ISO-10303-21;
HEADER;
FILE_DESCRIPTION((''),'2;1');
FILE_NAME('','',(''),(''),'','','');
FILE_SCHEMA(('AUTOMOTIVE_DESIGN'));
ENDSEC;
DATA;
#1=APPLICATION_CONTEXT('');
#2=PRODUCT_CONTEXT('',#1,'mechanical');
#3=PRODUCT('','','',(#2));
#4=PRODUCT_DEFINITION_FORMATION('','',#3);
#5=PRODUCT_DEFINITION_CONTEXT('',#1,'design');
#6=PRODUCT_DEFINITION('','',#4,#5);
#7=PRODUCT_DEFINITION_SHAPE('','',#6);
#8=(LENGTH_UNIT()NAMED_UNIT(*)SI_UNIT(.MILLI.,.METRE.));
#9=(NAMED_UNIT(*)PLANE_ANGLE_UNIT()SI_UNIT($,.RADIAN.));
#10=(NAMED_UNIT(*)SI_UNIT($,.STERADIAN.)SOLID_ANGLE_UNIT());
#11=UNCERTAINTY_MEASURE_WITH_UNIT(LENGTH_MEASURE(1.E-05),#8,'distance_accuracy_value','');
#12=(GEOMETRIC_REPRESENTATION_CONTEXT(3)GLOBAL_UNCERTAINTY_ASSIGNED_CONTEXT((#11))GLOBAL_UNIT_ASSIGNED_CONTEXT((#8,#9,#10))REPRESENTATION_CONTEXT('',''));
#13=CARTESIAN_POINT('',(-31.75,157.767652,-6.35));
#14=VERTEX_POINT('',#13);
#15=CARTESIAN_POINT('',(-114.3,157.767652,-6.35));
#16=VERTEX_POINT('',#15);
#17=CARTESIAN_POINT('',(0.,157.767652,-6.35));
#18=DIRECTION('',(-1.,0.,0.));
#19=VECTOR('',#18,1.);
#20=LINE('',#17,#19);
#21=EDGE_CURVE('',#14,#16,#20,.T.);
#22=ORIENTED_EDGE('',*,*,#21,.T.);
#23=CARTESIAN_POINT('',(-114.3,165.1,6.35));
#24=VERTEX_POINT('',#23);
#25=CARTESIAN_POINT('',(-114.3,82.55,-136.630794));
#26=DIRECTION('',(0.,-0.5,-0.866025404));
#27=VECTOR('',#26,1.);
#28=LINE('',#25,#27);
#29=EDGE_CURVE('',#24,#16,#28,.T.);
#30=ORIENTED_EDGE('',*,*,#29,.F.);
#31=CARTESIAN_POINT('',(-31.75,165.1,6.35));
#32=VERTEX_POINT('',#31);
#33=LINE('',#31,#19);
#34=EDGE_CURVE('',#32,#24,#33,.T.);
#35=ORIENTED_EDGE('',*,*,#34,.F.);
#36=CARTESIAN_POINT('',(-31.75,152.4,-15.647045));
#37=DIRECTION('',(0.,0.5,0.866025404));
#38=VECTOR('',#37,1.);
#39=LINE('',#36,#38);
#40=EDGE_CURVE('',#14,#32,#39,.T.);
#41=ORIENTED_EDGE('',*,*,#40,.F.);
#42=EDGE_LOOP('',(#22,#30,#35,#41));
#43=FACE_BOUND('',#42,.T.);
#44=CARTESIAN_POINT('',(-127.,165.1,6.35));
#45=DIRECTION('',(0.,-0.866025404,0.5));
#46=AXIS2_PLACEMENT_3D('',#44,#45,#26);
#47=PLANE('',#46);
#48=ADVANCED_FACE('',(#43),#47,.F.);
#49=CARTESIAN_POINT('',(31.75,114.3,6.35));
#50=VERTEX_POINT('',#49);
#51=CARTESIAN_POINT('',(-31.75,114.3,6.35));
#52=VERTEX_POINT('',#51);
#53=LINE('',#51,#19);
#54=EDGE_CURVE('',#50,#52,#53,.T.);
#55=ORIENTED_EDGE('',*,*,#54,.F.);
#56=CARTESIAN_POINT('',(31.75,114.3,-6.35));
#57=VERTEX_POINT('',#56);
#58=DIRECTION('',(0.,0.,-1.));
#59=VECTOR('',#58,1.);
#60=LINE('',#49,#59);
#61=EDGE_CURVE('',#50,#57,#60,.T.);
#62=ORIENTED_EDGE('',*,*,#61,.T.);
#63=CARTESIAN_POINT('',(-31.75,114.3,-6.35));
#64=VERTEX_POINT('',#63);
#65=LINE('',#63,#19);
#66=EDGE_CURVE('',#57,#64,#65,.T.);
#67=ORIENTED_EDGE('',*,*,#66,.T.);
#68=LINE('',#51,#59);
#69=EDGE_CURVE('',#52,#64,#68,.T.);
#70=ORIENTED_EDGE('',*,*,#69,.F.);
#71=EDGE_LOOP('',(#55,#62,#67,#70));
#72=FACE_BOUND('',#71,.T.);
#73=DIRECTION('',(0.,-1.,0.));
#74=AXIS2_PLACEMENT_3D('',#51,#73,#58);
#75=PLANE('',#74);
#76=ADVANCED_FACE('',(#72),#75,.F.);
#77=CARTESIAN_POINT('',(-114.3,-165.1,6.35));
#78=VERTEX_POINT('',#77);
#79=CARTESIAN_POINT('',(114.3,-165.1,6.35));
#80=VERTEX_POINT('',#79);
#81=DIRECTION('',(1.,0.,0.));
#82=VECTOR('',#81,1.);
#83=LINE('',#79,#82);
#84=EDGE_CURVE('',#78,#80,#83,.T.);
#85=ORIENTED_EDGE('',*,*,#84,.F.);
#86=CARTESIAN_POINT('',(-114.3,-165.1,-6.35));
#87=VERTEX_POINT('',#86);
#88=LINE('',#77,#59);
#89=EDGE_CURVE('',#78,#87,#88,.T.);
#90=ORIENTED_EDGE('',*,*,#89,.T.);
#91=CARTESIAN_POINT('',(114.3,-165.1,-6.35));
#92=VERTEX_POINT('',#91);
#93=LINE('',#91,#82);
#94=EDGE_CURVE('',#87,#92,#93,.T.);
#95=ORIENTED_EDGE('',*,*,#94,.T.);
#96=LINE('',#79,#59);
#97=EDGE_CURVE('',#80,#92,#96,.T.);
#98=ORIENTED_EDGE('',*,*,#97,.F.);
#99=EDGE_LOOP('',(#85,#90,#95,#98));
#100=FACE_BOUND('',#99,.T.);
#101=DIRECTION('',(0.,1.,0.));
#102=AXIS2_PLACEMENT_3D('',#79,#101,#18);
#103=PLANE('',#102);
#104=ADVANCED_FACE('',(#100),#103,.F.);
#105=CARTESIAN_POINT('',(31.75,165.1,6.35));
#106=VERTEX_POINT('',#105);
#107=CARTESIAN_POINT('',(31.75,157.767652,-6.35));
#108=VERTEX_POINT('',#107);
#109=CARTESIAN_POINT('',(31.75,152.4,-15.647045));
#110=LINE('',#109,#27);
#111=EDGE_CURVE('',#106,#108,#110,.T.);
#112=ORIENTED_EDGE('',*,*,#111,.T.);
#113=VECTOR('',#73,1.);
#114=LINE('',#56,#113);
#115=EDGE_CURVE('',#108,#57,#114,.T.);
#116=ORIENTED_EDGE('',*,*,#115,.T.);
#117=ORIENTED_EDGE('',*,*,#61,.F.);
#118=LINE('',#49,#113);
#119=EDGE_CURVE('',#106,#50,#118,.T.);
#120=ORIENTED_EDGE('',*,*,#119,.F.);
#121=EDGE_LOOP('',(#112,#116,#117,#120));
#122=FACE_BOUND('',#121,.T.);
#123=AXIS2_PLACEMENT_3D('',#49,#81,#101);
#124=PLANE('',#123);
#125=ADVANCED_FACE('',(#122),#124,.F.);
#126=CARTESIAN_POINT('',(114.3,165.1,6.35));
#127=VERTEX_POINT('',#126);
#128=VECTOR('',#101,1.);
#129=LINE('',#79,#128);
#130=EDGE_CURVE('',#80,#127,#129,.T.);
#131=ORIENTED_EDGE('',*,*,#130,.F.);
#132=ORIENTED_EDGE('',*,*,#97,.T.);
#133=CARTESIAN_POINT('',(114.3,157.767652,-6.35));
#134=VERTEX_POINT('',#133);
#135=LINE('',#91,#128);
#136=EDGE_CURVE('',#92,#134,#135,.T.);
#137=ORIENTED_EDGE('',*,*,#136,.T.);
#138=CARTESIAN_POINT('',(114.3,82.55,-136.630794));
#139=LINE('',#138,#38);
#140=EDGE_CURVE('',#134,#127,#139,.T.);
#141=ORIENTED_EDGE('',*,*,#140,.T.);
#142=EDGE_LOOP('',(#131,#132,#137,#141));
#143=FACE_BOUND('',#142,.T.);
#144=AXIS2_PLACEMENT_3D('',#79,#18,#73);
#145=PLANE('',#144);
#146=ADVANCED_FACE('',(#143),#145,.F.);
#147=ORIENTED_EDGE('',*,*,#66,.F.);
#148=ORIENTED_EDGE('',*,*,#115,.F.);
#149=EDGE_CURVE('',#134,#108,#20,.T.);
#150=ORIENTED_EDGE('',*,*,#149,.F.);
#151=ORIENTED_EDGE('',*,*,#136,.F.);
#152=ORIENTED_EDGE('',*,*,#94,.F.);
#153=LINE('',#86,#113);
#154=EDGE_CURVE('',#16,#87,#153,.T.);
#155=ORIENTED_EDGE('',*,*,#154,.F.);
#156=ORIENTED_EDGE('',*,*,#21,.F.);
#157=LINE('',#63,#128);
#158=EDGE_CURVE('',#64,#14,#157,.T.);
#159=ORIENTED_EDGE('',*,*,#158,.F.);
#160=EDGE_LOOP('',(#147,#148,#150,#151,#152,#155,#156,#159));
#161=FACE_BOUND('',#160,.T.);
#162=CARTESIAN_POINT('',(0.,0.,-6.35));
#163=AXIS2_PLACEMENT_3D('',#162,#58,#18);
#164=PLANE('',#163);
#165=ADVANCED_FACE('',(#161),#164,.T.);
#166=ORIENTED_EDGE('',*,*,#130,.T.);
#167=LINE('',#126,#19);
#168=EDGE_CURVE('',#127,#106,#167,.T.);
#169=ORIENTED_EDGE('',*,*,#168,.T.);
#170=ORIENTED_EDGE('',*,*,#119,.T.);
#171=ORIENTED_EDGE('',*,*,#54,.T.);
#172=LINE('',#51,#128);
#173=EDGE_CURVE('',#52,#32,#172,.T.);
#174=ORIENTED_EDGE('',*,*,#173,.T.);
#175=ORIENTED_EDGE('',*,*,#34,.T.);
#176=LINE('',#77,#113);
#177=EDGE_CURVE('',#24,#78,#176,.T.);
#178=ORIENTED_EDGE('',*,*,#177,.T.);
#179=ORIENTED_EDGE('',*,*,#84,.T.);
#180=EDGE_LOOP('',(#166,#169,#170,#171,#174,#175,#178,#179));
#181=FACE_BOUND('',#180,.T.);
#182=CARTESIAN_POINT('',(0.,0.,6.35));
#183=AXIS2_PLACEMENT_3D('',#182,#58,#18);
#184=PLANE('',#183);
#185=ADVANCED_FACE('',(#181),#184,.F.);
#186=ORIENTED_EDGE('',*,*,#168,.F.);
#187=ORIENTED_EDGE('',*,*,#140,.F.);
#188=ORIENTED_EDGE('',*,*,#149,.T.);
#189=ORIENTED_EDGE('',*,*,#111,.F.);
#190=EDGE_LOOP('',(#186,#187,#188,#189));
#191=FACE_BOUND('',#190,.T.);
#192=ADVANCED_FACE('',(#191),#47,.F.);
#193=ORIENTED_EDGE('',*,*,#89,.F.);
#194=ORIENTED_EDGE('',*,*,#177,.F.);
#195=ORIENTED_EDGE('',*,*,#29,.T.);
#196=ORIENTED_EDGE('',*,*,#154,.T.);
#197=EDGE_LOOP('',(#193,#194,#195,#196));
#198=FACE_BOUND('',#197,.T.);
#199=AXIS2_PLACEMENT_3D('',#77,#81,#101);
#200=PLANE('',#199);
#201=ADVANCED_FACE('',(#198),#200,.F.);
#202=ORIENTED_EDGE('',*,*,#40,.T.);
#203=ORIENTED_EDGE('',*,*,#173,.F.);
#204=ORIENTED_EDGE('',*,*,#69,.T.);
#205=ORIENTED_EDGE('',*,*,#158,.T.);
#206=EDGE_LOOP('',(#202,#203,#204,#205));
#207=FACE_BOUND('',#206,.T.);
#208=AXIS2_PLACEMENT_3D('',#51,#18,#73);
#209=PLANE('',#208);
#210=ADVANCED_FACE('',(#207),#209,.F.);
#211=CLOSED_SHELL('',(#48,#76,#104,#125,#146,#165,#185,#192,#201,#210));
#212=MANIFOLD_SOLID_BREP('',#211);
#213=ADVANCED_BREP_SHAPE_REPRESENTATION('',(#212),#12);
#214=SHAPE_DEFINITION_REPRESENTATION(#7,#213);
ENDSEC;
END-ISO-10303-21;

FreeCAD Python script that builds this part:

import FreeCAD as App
import Part
import Sketcher
from FreeCAD import Vector
Q = App.Units.Quantity

doc = App.newDocument("Part")
params = doc.addObject("Spreadsheet::Sheet", "Params")
for row, (alias, value) in enumerate([
    ("sketch1_width", "9 in"),
    ("sketch1_height", "13 in"),
    ("sketch1_height2", "2 in"),
    ("sketch1_width2", "2.5 in"),
    ("pad1_length", "0.5 in"),
    ("sketch2_height", "0.5 in"),
    ("pocket1_length", "10 in"),
], start=1):
    params.set(f"A{row}", alias)
    params.set(f"B{row}", "=" + value)
    params.setAlias(f"B{row}", alias)

body = doc.addObject("PartDesign::Body", "Body")

# Sketch on XY plane
sketch1 = body.newObject("Sketcher::SketchObject", "Sketch")
sketch1.AttachmentSupport = (doc.getObject("XY_Plane"), [""])
sketch1.MapMode = "FlatFace"
sketch1.addGeometry([
    Part.LineSegment(Vector(-114, -165, 0), Vector(114, -165, 0)),  # 0
    Part.LineSegment(Vector(114, -165, 0), Vector(114, 165, 0)),  # 1
    Part.LineSegment(Vector(114, 165, 0), Vector(32, 165, 0)),  # 2
    Part.LineSegment(Vector(32, 165, 0), Vector(32, 114, 0)),  # 3
    Part.LineSegment(Vector(32, 114, 0), Vector(-32, 114, 0)),  # 4
    Part.LineSegment(Vector(-32, 114, 0), Vector(-32, 165, 0)),  # 5
    Part.LineSegment(Vector(-32, 165, 0), Vector(-114, 165, 0)),  # 6
    Part.LineSegment(Vector(-114, 165, 0), Vector(-114, -165, 0)),  # 7
], False)
sketch1.addConstraint([
    Sketcher.Constraint("Coincident", 0, 2, 1, 1),
    Sketcher.Constraint("Coincident", 1, 2, 2, 1),
    Sketcher.Constraint("Coincident", 2, 2, 3, 1),
    Sketcher.Constraint("Coincident", 3, 2, 4, 1),
    Sketcher.Constraint("Coincident", 4, 2, 5, 1),
    Sketcher.Constraint("Coincident", 5, 2, 6, 1),
    Sketcher.Constraint("Coincident", 6, 2, 7, 1),
    Sketcher.Constraint("Coincident", 7, 2, 0, 1),
    Sketcher.Constraint("Horizontal", 0),
    Sketcher.Constraint("Vertical", 1),
    Sketcher.Constraint("Horizontal", 2),
    Sketcher.Constraint("Vertical", 3),
    Sketcher.Constraint("Horizontal", 4),
    Sketcher.Constraint("Vertical", 5),
    Sketcher.Constraint("Horizontal", 6),
    Sketcher.Constraint("Vertical", 7),
    Sketcher.Constraint("Symmetric", 0, 2, 6, 2, -1, 1),
    Sketcher.Constraint("Symmetric", 2, 2, 5, 2, -2),
    Sketcher.Constraint("DistanceX", 0, 1, 0, 2, Q("9 in")),
    Sketcher.Constraint("DistanceY", 1, 1, 1, 2, Q("13 in")),
    Sketcher.Constraint("DistanceY", 3, 2, 3, 1, Q("2 in")),
    Sketcher.Constraint("DistanceX", 4, 2, 4, 1, Q("2.5 in")),
])
sketch1.setExpression("Constraints[18]", "Params.sketch1_width")
sketch1.setExpression("Constraints[19]", "Params.sketch1_height")
sketch1.setExpression("Constraints[20]", "Params.sketch1_height2")
sketch1.setExpression("Constraints[21]", "Params.sketch1_width2")
pad1 = body.newObject("PartDesign::Pad", "Pad")
pad1.Profile = sketch1
pad1.setExpression("Length", "Params.pad1_length")
pad1.Midplane = True

# Sketch on YZ plane
sketch2 = body.newObject("Sketcher::SketchObject", "Sketch001")
sketch2.AttachmentSupport = (doc.getObject("YZ_Plane"), [""])
sketch2.MapMode = "FlatFace"
sketch2.addGeometry([
    Part.LineSegment(Vector(165, -6, 0), Vector(165, 6, 0)),
    Part.LineSegment(Vector(165, 6, 0), Vector(158, -6, 0)),
    Part.LineSegment(Vector(158, -6, 0), Vector(165, -6, 0)),
], False)
sketch2.addConstraint([
    Sketcher.Constraint("Coincident", 0, 2, 1, 1),
    Sketcher.Constraint("Coincident", 1, 2, 2, 1),
    Sketcher.Constraint("Coincident", 2, 2, 0, 1),
    Sketcher.Constraint("Vertical", 0),
    Sketcher.Constraint("Horizontal", 2),
    Sketcher.Constraint("DistanceY", 0, 1, 0, 2, Q("0.5 in")),
    Sketcher.Constraint("Angle", 1, Q("-120 deg")),
    Sketcher.Constraint("DistanceX", -1, 1, 0, 2, Q("6.5 in")),
    Sketcher.Constraint("DistanceY", -1, 1, 0, 2, Q("0.25 in")),
])
sketch2.setExpression("Constraints[5]", "Params.sketch2_height")
pocket1 = body.newObject("PartDesign::Pocket", "Pocket")
pocket1.Profile = sketch2
pocket1.setExpression("Length", "Params.pocket1_length")
pocket1.Midplane = True

doc.recompute()
